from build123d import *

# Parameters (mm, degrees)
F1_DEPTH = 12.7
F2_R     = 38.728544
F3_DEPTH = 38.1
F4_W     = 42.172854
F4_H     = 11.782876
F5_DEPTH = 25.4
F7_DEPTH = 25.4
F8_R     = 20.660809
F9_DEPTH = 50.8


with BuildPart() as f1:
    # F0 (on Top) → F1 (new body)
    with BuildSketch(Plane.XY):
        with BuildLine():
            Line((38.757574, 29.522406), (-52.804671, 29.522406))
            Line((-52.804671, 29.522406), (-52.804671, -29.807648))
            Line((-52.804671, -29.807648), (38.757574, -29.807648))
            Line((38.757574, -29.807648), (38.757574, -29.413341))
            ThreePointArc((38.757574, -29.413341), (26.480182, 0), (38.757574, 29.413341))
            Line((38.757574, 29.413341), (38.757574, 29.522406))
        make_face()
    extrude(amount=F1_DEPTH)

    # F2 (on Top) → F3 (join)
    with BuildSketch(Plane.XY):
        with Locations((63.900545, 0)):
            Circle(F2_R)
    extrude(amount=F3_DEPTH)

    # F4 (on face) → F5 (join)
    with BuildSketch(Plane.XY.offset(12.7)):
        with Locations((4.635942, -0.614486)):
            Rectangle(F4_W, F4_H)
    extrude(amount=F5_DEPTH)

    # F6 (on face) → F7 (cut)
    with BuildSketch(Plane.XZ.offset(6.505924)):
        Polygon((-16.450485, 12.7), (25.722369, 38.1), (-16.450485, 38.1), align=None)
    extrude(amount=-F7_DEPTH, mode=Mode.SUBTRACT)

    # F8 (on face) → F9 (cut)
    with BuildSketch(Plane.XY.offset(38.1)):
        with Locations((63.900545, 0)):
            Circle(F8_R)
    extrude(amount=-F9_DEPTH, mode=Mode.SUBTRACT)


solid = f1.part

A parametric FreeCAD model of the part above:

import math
import FreeCAD as App
import Part
import Sketcher
from FreeCAD import Vector
Q = App.Units.Quantity

doc = App.newDocument("Part")
body = doc.addObject("PartDesign::Body", "Body")

# Sketch on XY plane
sketch1 = body.newObject("Sketcher::SketchObject", "Sketch")
sketch1.AttachmentSupport = (doc.getObject("XY_Plane"), [""])
sketch1.MapMode = "FlatFace"
sketch1.addGeometry([
    Part.LineSegment(Vector(38.76, 29.52, 0), Vector(-52.8, 29.52, 0)),  # 0
    Part.LineSegment(Vector(-52.8, 29.52, 0), Vector(-52.8, -29.81, 0)),  # 1
    Part.LineSegment(Vector(-52.8, -29.81, 0), Vector(38.76, -29.81, 0)),  # 2
    Part.LineSegment(Vector(38.76, -29.81, 0), Vector(38.76, -29.41, 0)),  # 3
    Part.ArcOfCircle(Part.Circle(Vector(67.85, 0, 0), Vector(0, 0, 1), 41.37), math.radians(135), math.radians(225)),  # 4
    Part.LineSegment(Vector(38.76, 29.41, 0), Vector(38.76, 29.52, 0)),  # 5
], False)
sketch1.addConstraint([
    Sketcher.Constraint("Coincident", 0, 2, 1, 1),
    Sketcher.Constraint("Coincident", 1, 2, 2, 1),
    Sketcher.Constraint("Coincident", 2, 2, 3, 1),
    Sketcher.Constraint("Coincident", 3, 2, 4, 2),
    Sketcher.Constraint("Coincident", 4, 1, 5, 1),
    Sketcher.Constraint("Coincident", 5, 2, 0, 1),
    Sketcher.Constraint("Horizontal", 0),
    Sketcher.Constraint("Vertical", 1),
    Sketcher.Constraint("Horizontal", 2),
    Sketcher.Constraint("Vertical", 3),
    Sketcher.Constraint("Vertical", 5),
    Sketcher.Constraint("Symmetric", 3, 2, 4, 1, -1),
    Sketcher.Constraint("Radius", 4, 41.371937),
    Sketcher.Constraint("DistanceX", 0, 2, 0, 1, 91.562245),
    Sketcher.Constraint("DistanceY", 1, 2, 1, 1, 59.330054),
    Sketcher.Constraint("DistanceY", 3, 1, 3, 2, 0.394307),
    Sketcher.Constraint("DistanceY", 5, 1, 5, 2, 0.109065),
    Sketcher.Constraint("DistanceX", -1, 1, 4, 3, 67.852119),
])
pad1 = body.newObject("PartDesign::Pad", "Pad")
pad1.Profile = sketch1
pad1.Length = Q("0.5 in")

# Sketch on XY plane
sketch2 = body.newObject("Sketcher::SketchObject", "Sketch001")
sketch2.AttachmentSupport = (doc.getObject("XY_Plane"), [""])
sketch2.MapMode = "FlatFace"
sketch2.addGeometry(Part.Circle(Vector(64, 0, 0), Vector(0, 0, 1), 39), False)
sketch2.addConstraint([
    Sketcher.Constraint("PointOnObject", 0, 3, -1),
    Sketcher.Constraint("Diameter", 0, 77.457088),
    Sketcher.Constraint("DistanceX", -1, 1, 0, 3, 63.900545),
])
pad2 = body.newObject("PartDesign::Pad", "Pad001")
pad2.Profile = sketch2
pad2.Length = Q("1.5 in")

# Sketch on XY plane
sketch3 = body.newObject("Sketcher::SketchObject", "Sketch002")
sketch3.AttachmentSupport = (doc.getObject("XY_Plane"), [""])
sketch3.MapMode = "FlatFace"
sketch3.AttachmentOffset = App.Placement(Vector(0, 0, 0.5 * 25.4), App.Rotation())
sketch3.addGeometry([
    Part.LineSegment(Vector(-16, 5, 0), Vector(-16, -7, 0)),
    Part.LineSegment(Vector(-16, -7, 0), Vector(26, -7, 0)),
    Part.LineSegment(Vector(26, -7, 0), Vector(26, 5, 0)),
    Part.LineSegment(Vector(26, 5, 0), Vector(-16, 5, 0)),
], False)
sketch3.addConstraint([
    Sketcher.Constraint("Coincident", 0, 2, 1, 1),
    Sketcher.Constraint("Coincident", 1, 2, 2, 1),
    Sketcher.Constraint("Coincident", 2, 2, 3, 1),
    Sketcher.Constraint("Coincident", 3, 2, 0, 1),
    Sketcher.Constraint("Vertical", 0),
    Sketcher.Constraint("Horizontal", 1),
    Sketcher.Constraint("Vertical", 2),
    Sketcher.Constraint("Horizontal", 3),
    Sketcher.Constraint("DistanceX", 1, 1, 1, 2, 42.172854),
    Sketcher.Constraint("DistanceY", 0, 2, 0, 1, 11.782876),
    Sketcher.Constraint("DistanceX", -1, 1, 1, 2, 25.722369),
    Sketcher.Constraint("DistanceY", -1, 1, 2, 2, 5.276952),
])
pad3 = body.newObject("PartDesign::Pad", "Pad002")
pad3.Profile = sketch3
pad3.Length = Q("1 in")

# Sketch on XZ plane
sketch4 = body.newObject("Sketcher::SketchObject", "Sketch003")
sketch4.AttachmentSupport = (doc.getObject("XZ_Plane"), [""])
sketch4.MapMode = "FlatFace"
sketch4.AttachmentOffset = App.Placement(Vector(0, 0, 6.505924), App.Rotation())
sketch4.addGeometry([
    Part.LineSegment(Vector(-16, 13, 0), Vector(26, 38, 0)),
    Part.LineSegment(Vector(26, 38, 0), Vector(-16, 38, 0)),
    Part.LineSegment(Vector(-16, 38, 0), Vector(-16, 13, 0)),
], False)
sketch4.addConstraint([
    Sketcher.Constraint("Coincident", 0, 2, 1, 1),
    Sketcher.Constraint("Coincident", 1, 2, 2, 1),
    Sketcher.Constraint("Coincident", 2, 2, 0, 1),
    Sketcher.Constraint("Horizontal", 1),
    Sketcher.Constraint("Vertical", 2),
    Sketcher.Constraint("DistanceY", 2, 2, 2, 1, Q("1 in")),
    Sketcher.Constraint("DistanceY", -1, 1, 0, 2, Q("1.5 in")),
    Sketcher.Constraint("DistanceX", 1, 2, 1, 1, 42.172854),
    Sketcher.Constraint("DistanceX", -1, 1, 0, 2, 25.722369),
])
pocket1 = body.newObject("PartDesign::Pocket", "Pocket")
pocket1.Profile = sketch4
pocket1.Length = Q("1 in")

# Sketch on XY plane
sketch5 = body.newObject("Sketcher::SketchObject", "Sketch004")
sketch5.AttachmentSupport = (doc.getObject("XY_Plane"), [""])
sketch5.MapMode = "FlatFace"
sketch5.AttachmentOffset = App.Placement(Vector(0, 0, 1.5 * 25.4), App.Rotation())
sketch5.addGeometry(Part.Circle(Vector(64, 0, 0), Vector(0, 0, 1), 21), False)
sketch5.addConstraint([
    Sketcher.Constraint("PointOnObject", 0, 3, -1),
    Sketcher.Constraint("Diameter", 0, 41.321618),
    Sketcher.Constraint("DistanceX", -1, 1, 0, 3, 63.900545),
])
pocket2 = body.newObject("PartDesign::Pocket", "Pocket001")
pocket2.Profile = sketch5
pocket2.Length = Q("2 in")

doc.recompute()
